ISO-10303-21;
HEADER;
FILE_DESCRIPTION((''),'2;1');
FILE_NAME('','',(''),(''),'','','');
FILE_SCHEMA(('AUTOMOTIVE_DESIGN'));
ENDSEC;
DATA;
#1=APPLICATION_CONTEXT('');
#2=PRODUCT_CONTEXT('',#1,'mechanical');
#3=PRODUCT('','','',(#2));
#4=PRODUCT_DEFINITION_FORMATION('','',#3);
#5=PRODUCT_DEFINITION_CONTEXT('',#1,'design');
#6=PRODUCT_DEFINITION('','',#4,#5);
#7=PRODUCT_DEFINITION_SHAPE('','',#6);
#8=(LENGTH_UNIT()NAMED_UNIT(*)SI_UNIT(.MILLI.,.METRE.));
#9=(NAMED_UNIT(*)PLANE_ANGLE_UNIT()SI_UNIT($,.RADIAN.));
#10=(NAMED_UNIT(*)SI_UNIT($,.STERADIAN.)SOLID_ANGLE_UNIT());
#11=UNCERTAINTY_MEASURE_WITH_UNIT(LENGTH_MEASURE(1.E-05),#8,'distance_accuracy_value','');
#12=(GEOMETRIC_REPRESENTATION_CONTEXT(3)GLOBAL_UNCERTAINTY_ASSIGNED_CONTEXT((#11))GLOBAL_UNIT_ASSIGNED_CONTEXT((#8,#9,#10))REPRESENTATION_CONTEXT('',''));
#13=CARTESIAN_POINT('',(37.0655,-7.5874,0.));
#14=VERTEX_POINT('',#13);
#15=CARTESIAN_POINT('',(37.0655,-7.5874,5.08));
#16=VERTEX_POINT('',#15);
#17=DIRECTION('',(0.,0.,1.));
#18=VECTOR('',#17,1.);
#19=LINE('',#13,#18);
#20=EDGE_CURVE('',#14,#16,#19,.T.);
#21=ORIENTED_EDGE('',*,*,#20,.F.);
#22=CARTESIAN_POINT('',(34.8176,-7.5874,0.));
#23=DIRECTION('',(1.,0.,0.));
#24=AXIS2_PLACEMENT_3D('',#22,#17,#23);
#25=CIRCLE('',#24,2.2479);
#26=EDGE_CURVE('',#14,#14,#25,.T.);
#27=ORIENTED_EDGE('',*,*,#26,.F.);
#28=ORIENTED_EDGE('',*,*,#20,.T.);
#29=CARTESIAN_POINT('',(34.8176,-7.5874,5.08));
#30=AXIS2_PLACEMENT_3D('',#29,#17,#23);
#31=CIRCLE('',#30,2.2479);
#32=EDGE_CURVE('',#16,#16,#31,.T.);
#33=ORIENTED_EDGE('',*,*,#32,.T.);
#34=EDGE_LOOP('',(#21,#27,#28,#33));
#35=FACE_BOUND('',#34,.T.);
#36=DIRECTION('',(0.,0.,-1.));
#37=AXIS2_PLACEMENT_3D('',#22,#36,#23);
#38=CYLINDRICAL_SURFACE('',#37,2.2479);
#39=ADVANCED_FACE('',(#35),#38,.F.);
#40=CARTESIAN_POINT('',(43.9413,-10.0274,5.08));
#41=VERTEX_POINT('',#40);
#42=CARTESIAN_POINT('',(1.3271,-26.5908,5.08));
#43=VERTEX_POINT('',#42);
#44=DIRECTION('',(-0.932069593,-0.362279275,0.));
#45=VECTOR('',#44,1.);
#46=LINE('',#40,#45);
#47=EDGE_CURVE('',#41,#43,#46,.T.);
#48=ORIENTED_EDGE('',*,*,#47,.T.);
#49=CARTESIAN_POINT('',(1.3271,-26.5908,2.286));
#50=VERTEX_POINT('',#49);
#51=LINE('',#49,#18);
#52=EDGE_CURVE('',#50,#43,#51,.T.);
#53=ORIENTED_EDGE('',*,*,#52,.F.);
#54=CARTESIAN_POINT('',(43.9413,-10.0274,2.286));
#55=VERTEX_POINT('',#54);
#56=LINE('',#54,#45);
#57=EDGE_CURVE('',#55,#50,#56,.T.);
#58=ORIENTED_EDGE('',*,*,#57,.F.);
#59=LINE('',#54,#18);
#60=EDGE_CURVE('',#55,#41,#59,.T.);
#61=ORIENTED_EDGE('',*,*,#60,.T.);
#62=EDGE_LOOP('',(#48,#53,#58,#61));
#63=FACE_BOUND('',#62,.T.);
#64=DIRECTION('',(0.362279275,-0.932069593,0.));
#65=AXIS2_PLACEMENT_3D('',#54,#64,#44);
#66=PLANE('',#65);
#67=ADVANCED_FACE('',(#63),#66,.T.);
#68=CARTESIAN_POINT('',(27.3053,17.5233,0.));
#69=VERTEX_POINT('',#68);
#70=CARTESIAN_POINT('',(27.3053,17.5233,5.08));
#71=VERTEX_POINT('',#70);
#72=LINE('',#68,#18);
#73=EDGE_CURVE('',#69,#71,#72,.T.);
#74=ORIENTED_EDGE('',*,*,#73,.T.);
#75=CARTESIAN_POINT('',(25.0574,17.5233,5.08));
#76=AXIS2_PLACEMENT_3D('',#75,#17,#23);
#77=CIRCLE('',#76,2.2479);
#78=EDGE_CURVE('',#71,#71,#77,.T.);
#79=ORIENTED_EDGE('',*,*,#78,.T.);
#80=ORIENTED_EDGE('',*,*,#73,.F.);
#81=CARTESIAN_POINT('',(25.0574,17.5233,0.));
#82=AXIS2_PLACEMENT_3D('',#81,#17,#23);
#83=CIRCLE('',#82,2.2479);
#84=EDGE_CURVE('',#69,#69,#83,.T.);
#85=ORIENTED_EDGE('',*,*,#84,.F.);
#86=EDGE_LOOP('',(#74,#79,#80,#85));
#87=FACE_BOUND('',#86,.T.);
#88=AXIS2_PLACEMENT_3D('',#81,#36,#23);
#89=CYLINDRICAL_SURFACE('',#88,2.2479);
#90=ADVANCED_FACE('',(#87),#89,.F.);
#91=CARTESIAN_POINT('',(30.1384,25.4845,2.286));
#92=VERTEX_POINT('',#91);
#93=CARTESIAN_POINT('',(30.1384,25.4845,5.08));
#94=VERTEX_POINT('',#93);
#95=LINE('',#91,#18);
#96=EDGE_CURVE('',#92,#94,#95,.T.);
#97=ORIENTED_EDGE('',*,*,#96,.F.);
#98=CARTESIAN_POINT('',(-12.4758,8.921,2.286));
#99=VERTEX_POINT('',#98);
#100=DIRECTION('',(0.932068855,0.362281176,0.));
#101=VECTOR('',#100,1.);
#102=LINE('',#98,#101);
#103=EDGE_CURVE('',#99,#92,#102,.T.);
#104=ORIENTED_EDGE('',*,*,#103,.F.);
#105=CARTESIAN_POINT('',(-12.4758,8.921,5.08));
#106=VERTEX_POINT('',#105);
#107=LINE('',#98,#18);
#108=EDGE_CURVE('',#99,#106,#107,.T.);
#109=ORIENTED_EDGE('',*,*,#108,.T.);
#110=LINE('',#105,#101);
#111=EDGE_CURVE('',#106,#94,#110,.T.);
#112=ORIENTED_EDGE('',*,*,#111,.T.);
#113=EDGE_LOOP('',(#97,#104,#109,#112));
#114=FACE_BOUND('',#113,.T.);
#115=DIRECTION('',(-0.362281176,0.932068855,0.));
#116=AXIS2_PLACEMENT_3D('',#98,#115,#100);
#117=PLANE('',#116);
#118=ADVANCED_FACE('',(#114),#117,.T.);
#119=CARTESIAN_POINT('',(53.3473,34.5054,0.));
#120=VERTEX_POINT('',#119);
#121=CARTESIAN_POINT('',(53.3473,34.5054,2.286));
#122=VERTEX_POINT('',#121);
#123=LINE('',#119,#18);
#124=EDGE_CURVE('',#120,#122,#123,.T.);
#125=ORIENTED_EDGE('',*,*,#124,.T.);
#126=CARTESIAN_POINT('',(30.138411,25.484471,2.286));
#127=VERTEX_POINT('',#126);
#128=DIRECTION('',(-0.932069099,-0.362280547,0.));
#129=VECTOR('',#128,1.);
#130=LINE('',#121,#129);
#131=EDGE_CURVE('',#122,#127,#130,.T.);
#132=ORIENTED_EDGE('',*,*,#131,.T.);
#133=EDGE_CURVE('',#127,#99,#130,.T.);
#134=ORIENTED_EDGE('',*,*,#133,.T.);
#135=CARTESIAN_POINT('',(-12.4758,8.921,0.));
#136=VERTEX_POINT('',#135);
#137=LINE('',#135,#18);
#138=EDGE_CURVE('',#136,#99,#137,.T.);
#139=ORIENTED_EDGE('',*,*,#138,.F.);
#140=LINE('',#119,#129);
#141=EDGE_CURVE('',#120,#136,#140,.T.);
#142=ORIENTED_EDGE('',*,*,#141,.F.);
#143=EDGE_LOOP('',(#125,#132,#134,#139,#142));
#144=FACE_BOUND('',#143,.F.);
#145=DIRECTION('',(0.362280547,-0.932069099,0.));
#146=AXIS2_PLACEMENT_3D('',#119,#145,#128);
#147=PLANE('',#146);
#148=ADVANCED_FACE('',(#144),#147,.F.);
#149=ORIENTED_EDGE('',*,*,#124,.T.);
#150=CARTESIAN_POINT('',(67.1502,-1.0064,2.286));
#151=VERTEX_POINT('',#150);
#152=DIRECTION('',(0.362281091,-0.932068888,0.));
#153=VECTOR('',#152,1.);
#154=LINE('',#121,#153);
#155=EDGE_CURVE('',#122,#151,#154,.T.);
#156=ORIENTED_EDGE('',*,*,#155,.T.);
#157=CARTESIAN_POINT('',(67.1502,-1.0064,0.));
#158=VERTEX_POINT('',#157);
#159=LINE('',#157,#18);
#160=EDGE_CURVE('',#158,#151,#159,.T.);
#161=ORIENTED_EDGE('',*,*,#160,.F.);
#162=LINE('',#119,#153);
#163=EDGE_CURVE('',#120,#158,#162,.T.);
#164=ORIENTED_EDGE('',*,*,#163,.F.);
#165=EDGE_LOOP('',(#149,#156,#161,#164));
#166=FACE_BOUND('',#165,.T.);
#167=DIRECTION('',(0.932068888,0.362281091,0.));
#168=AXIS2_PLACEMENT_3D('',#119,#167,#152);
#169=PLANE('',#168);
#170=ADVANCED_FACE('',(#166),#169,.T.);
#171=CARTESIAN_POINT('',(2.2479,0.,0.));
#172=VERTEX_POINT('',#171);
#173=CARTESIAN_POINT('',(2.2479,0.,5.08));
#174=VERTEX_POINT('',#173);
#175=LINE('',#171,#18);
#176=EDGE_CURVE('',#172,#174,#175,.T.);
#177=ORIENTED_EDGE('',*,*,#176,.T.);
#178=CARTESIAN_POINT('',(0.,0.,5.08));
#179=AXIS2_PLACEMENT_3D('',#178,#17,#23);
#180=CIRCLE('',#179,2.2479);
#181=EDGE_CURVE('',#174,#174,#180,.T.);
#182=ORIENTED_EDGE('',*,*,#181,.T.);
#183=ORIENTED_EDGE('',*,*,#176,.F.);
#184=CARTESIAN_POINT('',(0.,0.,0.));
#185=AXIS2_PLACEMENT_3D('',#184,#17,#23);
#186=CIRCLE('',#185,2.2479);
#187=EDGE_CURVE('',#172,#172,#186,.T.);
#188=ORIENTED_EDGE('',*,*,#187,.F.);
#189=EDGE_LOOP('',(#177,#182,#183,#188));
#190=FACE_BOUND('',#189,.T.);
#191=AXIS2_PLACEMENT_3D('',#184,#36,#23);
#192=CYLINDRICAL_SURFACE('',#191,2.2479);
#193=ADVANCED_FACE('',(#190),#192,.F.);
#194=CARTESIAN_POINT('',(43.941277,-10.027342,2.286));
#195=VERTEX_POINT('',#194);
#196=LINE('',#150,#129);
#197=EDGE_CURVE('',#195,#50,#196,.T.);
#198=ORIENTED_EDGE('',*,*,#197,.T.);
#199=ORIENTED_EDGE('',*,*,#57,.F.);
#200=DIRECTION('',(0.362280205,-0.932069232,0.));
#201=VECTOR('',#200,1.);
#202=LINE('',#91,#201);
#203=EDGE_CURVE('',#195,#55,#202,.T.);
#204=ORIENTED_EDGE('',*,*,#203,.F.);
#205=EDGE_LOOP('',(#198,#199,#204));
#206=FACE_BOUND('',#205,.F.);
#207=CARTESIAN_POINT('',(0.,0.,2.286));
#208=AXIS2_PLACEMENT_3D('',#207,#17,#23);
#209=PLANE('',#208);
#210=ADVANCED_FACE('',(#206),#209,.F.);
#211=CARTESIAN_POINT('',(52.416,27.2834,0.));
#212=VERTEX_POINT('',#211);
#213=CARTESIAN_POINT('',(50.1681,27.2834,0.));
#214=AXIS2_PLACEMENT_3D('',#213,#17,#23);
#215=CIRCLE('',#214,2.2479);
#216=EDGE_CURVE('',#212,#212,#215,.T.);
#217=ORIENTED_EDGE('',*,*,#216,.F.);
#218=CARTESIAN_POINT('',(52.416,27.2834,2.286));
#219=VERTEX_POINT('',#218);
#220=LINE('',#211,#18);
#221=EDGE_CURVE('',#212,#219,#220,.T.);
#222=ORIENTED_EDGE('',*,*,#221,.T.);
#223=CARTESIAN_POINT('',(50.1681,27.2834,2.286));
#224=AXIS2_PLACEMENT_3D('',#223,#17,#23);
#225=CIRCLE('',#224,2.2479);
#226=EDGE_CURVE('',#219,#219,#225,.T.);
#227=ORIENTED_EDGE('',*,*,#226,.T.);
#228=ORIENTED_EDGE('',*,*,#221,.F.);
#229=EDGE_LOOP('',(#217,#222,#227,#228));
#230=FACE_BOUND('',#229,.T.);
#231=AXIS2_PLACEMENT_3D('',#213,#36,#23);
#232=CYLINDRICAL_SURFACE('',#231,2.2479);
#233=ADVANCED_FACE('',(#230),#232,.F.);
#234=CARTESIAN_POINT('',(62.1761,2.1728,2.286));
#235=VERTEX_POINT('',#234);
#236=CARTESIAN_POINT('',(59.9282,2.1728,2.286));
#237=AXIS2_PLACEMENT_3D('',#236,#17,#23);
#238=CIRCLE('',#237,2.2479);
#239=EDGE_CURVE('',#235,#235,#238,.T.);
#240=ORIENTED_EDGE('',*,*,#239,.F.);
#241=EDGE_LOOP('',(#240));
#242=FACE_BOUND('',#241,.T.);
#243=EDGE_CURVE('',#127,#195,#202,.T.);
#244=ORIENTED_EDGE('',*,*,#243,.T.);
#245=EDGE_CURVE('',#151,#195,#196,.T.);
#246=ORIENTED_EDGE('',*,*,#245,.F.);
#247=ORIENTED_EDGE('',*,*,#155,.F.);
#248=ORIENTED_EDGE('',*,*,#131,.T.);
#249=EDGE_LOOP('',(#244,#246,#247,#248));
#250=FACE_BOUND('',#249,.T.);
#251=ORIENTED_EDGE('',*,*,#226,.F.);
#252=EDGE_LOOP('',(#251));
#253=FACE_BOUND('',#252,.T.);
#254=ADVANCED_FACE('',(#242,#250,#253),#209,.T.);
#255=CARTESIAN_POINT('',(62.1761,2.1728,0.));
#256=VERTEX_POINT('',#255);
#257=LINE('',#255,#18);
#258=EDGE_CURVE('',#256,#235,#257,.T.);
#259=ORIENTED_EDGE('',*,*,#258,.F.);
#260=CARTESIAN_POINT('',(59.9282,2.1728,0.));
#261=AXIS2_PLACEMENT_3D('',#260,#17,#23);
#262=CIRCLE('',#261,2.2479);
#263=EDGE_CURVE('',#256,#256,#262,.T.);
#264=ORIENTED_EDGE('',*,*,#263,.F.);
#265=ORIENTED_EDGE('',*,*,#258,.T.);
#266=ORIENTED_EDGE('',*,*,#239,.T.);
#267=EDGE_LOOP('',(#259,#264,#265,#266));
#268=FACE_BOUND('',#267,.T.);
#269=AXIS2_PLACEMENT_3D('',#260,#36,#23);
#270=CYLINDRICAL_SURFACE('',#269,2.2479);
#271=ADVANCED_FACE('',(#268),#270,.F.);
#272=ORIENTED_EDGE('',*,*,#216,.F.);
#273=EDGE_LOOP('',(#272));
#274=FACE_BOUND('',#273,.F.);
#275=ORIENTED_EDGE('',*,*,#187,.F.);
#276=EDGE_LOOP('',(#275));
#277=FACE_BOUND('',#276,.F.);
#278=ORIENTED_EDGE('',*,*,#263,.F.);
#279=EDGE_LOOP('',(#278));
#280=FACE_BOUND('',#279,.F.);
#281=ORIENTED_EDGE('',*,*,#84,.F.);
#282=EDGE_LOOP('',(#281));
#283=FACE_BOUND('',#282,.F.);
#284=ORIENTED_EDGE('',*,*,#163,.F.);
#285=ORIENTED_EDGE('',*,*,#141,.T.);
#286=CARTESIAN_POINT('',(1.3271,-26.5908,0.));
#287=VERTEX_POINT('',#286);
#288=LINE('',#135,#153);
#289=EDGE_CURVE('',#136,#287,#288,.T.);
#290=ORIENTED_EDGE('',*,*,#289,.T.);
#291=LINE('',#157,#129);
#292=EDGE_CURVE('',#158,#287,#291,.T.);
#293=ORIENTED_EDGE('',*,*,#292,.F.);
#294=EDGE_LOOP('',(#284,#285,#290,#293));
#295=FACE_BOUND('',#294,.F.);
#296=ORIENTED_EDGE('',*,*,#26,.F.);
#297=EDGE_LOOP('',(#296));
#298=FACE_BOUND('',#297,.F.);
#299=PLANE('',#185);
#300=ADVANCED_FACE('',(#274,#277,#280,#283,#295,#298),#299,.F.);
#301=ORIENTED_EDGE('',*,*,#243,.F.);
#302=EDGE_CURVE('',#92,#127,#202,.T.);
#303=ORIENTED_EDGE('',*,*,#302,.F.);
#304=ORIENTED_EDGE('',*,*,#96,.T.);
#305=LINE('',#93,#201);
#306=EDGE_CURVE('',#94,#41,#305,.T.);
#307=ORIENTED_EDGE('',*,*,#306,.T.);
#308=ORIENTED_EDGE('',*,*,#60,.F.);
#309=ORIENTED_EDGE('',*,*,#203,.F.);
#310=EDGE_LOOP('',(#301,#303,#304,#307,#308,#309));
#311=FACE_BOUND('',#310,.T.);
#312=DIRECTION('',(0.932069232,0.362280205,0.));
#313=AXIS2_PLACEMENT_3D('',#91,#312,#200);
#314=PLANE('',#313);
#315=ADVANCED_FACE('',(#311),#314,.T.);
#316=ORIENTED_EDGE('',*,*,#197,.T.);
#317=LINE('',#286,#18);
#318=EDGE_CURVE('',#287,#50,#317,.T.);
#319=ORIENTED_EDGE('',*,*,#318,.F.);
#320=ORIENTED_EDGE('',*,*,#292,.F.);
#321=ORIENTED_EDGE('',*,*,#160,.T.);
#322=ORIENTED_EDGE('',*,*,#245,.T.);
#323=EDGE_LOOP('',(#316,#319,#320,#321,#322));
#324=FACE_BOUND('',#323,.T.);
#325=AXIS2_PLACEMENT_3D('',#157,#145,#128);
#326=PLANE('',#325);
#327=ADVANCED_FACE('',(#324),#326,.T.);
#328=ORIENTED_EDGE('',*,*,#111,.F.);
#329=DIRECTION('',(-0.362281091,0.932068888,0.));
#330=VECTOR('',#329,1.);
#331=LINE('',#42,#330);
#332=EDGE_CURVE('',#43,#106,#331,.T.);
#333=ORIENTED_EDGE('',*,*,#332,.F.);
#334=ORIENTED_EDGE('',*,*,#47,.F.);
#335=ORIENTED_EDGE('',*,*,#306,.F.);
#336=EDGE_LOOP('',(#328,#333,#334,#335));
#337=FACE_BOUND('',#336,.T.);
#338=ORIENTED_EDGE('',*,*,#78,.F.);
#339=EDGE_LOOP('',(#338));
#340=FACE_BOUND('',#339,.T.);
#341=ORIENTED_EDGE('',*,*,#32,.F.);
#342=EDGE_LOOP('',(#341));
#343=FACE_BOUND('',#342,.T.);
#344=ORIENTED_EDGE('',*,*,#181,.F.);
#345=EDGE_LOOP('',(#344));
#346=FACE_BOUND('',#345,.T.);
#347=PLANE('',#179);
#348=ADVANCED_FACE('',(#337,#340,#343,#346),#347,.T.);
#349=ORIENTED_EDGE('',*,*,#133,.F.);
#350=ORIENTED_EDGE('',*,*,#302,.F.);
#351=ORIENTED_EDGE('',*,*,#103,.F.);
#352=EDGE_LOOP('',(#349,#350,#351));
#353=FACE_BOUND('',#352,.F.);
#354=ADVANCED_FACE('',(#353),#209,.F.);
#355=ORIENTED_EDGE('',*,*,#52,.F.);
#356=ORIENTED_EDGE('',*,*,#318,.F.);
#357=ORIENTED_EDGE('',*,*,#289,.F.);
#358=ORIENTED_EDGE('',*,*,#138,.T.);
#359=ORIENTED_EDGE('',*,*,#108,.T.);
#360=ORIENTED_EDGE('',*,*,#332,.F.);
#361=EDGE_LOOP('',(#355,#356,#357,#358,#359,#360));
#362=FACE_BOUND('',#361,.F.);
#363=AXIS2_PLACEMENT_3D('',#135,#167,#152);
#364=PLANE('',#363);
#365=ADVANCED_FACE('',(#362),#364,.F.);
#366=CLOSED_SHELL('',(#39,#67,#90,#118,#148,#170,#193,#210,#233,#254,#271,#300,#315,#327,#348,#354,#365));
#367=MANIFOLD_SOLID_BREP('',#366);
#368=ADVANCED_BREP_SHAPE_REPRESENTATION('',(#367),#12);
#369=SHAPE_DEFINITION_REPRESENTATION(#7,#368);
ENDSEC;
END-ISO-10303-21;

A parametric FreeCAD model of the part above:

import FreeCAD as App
import Part
import Sketcher
from FreeCAD import Vector
Q = App.Units.Quantity


def add_polygon(sketch, points):
    """Adds a closed chain of lines whose ends are joined by coincident constraints."""
    first, n = sketch.GeometryCount, len(points)
    for a, b in zip(points, points[1:] + points[:1]):
        sketch.addGeometry(Part.LineSegment(App.Vector(*a, 0), App.Vector(*b, 0)), False)
    for i in range(n):
        sketch.addConstraint(Sketcher.Constraint("Coincident", first + i, 2, first + (i + 1) % n, 1))

doc = App.newDocument("Part")
params = doc.addObject("Spreadsheet::Sheet", "Params")
for row, (alias, value) in enumerate([
    ("sketch1_diameter", "0.177 in"),
    ("sketch1_length", "1.5 in"),
    ("pad1_length", "0.09 in"),
    ("sketch2_length", "1.8 in"),
    ("sketch2_diameter", "0.177 in"),
    ("sketch2_length2", "1.5 in"),
    ("pad2_length", "0.11 in"),
], start=1):
    params.set(f"A{row}", alias)
    params.set(f"B{row}", "=" + value)
    params.setAlias(f"B{row}", alias)

body = doc.addObject("PartDesign::Body", "Body")

# Sketch on XY plane
sketch1 = doc.addObject("Sketcher::SketchObject", "Sketch")
body.addObject(sketch1)
sketch1.AttachmentSupport = (doc.XY_Plane, [""])
sketch1.MapMode = "FlatFace"
add_polygon(sketch1, [(1.3, -26.6), (67.2, -1), (53.3, 34.5), (-12.5, 8.9)])  # lines 0-3
sketch1.addGeometry(Part.Circle(Vector(0, 0, 0), Vector(0, 0, 1), 2.2), False)  # 4
sketch1.addGeometry(Part.Circle(Vector(34.8, -7.6, 0), Vector(0, 0, 1), 2.2), False)  # 5
sketch1.addGeometry(Part.Circle(Vector(59.9, 2.2, 0), Vector(0, 0, 1), 2.2), False)  # 6
sketch1.addGeometry(Part.Circle(Vector(25.1, 17.5, 0), Vector(0, 0, 1), 2.2), False)  # 7
sketch1.addGeometry(Part.Circle(Vector(50.2, 27.3, 0), Vector(0, 0, 1), 2.2), False)  # 8
sketch1.addConstraint([
    Sketcher.Constraint("Coincident", 4, 3, -1, 1),
    Sketcher.Constraint("Equal", 4, 5),
    Sketcher.Constraint("Equal", 5, 6),
    Sketcher.Constraint("Equal", 6, 7),
    Sketcher.Constraint("Equal", 7, 8),
    Sketcher.Constraint("Perpendicular", 0, 1),
    Sketcher.Constraint("Perpendicular", 1, 2),
    Sketcher.Constraint("Perpendicular", 2, 3),
    Sketcher.Constraint("Diameter", 4, Q("0.177 in")),
    Sketcher.Constraint("Distance", 1, Q("1.5 in")),
    Sketcher.Constraint("Angle", 0, Q("21.2403 deg")),
    Sketcher.Constraint("DistanceX", -1, 1, 6, 3, Q("2.359378 in")),
    Sketcher.Constraint("DistanceY", 3, 2, -1, 1, Q("1.0468819 in")),
    Sketcher.Constraint("DistanceX", -1, 1, 7, 3, Q("0.9865 in")),
    Sketcher.Constraint("DistanceY", -1, 1, 7, 3, Q("0.6899 in")),
    Sketcher.Constraint("DistanceX", -1, 1, 0, 2, Q("2.6437 in")),
    Sketcher.Constraint("DistanceX", 5, 3, 6, 3, Q("0.9886 in")),
    Sketcher.Constraint("DistanceY", 5, 3, 7, 3, Q("0.9886 in")),
    Sketcher.Constraint("DistanceY", 6, 3, 8, 3, Q("0.9886 in")),
    Sketcher.Constraint("DistanceX", 7, 3, 8, 3, Q("0.9886 in")),
    Sketcher.Constraint("DistanceY", 5, 3, 0, 2, Q("0.2591 in")),
    Sketcher.Constraint("DistanceY", -1, 1, 6, 3, 2.1728),
])
sketch1.setExpression("Constraints[12]", "Params.sketch1_diameter")
sketch1.setExpression("Constraints[13]", "Params.sketch1_length")
pad1 = doc.addObject("PartDesign::Pad", "Pad")
body.addObject(pad1)
pad1.Profile = sketch1
pad1.setExpression("Length", "Params.pad1_length")

# Sketch on XY plane
sketch2 = doc.addObject("Sketcher::SketchObject", "Sketch001")
body.addObject(sketch2)
sketch2.AttachmentSupport = (doc.XY_Plane, [""])
sketch2.MapMode = "FlatFace"
sketch2.AttachmentOffset = App.Placement(Vector(0, 0, 0.09 * 25.4), App.Rotation())
add_polygon(sketch2, [(-12.5, 8.9), (1.3, -26.6), (43.9, -10), (30.1, 25.5)])  # lines 0-3
sketch2.addGeometry(Part.Circle(Vector(34.8, -7.6, 0), Vector(0, 0, 1), 2.2), False)  # 4
sketch2.addGeometry(Part.Circle(Vector(0, 0, 0), Vector(0, 0, 1), 2.2), False)  # 5
sketch2.addGeometry(Part.Circle(Vector(25.1, 17.5, 0), Vector(0, 0, 1), 2.2), False)  # 6
sketch2.addConstraint([
    Sketcher.Constraint("Coincident", 5, 3, -1, 1),
    Sketcher.Constraint("Equal", 4, 5),
    Sketcher.Constraint("Equal", 5, 6),
    Sketcher.Constraint("Perpendicular", 0, 1),
    Sketcher.Constraint("Perpendicular", 1, 2),
    Sketcher.Constraint("Perpendicular", 2, 3),
    Sketcher.Constraint("Distance", 1, Q("1.8 in")),
    Sketcher.Constraint("Diameter", 4, Q("0.177 in")),
    Sketcher.Constraint("Distance", 0, Q("1.5 in")),
    Sketcher.Constraint("Angle", 0, Q("-68.7596 deg")),
    Sketcher.Constraint("DistanceY", 0, 2, -1, 1, Q("1.0468819 in")),
    Sketcher.Constraint("DistanceX", -1, 1, 6, 3, Q("0.9865 in")),
    Sketcher.Constraint("DistanceY", -1, 1, 6, 3, Q("0.6899 in")),
    Sketcher.Constraint("DistanceY", 4, 3, 6, 3, Q("0.9886 in")),
    Sketcher.Constraint("DistanceX", 4, 3, 1, 2, Q("0.3592 in")),
    Sketcher.Constraint("DistanceX", -1, 1, 4, 3, 34.8176),
])
sketch2.setExpression("Constraints[10]", "Params.sketch2_length")
sketch2.setExpression("Constraints[11]", "Params.sketch2_diameter")
sketch2.setExpression("Constraints[12]", "Params.sketch2_length2")
pad2 = doc.addObject("PartDesign::Pad", "Pad001")
body.addObject(pad2)
pad2.Profile = sketch2
pad2.setExpression("Length", "Params.pad2_length")

doc.recompute()
